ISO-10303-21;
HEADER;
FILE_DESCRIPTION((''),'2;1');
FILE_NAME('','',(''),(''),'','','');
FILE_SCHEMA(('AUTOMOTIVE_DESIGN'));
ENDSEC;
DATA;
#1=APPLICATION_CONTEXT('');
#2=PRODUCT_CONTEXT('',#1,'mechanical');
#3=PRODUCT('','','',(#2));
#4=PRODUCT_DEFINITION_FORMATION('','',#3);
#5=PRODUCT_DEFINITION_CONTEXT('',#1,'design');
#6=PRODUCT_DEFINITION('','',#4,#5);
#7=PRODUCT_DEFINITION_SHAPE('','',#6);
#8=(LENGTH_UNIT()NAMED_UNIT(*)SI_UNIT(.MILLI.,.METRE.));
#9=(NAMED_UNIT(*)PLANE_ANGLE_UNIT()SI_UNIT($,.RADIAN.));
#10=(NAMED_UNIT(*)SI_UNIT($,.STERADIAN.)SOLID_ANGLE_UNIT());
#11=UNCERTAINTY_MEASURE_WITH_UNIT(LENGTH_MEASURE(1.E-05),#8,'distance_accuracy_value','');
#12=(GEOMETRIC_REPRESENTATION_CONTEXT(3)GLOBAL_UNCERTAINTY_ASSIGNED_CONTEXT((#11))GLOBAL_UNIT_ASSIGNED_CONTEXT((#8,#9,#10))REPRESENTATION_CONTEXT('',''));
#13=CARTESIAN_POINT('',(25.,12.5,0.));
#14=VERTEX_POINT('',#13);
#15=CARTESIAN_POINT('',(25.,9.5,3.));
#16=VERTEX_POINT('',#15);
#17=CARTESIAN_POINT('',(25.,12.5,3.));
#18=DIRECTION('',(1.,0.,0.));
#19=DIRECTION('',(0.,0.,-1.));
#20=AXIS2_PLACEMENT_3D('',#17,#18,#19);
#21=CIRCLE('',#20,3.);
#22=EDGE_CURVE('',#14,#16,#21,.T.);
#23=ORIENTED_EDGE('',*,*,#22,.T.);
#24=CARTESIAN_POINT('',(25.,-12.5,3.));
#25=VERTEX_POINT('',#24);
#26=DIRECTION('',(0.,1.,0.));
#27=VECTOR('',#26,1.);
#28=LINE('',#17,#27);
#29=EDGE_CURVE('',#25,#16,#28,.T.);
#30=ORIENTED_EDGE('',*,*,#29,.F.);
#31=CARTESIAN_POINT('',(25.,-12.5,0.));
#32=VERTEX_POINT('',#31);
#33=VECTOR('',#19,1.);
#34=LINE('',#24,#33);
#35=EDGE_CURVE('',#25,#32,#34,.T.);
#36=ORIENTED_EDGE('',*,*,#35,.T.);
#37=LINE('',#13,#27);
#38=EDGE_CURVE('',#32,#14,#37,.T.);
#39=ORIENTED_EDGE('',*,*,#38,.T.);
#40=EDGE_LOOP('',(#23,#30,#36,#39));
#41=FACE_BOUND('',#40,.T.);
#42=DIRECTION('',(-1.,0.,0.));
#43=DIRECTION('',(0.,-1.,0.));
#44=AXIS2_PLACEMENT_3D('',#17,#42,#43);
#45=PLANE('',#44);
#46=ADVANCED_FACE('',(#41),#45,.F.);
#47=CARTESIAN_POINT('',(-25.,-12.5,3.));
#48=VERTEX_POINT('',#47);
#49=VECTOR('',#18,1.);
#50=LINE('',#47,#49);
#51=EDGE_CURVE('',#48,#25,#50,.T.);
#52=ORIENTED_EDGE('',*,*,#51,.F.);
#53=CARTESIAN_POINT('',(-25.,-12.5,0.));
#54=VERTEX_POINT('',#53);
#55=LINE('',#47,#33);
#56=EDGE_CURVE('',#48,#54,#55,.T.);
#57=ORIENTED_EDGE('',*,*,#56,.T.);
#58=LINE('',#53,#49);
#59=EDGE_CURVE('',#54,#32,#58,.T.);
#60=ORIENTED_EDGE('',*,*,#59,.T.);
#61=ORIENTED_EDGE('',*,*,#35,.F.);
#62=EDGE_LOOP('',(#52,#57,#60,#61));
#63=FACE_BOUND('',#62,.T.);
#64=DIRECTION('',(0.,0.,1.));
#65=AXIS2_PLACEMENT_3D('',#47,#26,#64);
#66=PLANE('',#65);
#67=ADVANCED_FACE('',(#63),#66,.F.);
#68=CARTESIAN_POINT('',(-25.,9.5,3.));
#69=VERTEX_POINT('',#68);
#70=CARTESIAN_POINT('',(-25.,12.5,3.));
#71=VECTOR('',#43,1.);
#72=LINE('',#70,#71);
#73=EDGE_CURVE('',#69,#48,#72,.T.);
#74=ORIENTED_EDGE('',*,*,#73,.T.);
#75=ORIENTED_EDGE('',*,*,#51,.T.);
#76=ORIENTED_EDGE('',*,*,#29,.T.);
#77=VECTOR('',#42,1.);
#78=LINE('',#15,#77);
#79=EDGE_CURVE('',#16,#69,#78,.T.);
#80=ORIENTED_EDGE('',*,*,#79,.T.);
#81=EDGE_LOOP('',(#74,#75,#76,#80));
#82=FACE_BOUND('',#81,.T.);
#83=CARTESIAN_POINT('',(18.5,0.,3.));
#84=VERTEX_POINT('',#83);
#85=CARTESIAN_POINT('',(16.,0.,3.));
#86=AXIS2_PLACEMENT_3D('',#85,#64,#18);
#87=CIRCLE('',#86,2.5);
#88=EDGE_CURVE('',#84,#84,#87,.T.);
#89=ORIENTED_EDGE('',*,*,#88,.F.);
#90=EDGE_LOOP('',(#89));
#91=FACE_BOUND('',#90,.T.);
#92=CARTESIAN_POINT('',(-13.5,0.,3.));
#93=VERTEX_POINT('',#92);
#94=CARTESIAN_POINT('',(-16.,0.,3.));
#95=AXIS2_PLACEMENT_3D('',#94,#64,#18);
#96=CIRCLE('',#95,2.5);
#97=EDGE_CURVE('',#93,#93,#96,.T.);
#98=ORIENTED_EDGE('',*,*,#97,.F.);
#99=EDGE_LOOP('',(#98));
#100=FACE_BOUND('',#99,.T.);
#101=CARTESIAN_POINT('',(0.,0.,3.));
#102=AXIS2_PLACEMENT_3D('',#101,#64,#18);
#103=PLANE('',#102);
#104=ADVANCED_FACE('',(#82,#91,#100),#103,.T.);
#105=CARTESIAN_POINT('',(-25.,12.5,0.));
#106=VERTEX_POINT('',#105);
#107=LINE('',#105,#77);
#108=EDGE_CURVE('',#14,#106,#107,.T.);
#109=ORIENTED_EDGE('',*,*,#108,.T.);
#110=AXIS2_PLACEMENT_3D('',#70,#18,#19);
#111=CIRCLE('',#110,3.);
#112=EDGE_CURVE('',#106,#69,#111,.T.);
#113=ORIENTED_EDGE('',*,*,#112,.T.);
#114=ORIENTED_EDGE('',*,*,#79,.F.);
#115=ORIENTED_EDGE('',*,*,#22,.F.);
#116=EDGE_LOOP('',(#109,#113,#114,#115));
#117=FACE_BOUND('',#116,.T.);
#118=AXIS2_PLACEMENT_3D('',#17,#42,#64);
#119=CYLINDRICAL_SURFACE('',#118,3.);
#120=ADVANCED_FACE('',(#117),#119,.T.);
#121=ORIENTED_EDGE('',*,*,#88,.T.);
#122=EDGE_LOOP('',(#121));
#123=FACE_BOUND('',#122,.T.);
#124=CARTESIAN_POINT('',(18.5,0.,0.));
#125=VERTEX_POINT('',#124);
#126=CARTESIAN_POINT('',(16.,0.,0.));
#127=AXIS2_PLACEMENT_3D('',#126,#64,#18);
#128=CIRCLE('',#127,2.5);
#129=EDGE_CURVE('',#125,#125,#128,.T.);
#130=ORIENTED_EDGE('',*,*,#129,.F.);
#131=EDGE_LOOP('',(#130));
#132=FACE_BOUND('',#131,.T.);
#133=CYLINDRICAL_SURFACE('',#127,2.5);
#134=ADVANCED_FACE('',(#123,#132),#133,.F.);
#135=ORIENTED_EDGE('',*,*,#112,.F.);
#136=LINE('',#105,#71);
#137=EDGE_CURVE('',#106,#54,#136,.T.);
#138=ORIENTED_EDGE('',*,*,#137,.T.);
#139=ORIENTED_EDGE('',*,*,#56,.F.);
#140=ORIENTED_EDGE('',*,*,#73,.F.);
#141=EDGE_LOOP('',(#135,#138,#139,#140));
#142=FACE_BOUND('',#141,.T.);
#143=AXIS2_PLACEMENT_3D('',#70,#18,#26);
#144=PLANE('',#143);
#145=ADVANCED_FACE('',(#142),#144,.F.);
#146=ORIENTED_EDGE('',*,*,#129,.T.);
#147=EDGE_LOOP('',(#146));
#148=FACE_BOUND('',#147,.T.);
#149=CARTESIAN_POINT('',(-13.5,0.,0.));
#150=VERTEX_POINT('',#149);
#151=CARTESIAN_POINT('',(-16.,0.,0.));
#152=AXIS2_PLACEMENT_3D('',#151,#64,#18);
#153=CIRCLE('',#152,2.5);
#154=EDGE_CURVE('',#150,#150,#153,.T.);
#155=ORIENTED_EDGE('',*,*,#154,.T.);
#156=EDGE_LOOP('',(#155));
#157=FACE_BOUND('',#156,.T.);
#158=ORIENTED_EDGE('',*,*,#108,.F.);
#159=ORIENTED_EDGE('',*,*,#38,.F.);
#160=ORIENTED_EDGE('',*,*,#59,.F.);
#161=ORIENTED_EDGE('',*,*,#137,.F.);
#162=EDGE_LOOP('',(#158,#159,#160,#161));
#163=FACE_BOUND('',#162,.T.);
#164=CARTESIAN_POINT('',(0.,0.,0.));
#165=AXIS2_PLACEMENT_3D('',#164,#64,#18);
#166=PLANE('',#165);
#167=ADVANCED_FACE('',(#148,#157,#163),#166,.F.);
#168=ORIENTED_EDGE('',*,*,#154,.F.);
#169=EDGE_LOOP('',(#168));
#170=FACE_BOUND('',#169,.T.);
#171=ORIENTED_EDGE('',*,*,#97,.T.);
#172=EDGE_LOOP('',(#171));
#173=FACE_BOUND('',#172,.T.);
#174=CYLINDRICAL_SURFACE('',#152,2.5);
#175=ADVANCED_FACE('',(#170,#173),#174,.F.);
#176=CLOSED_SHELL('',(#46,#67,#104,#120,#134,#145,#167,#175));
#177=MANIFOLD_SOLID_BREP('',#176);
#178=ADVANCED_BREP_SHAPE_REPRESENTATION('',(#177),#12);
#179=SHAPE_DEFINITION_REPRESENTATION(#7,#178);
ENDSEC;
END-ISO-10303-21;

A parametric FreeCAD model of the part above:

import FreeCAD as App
import Part
import Sketcher

V = App.Vector
Q = App.Units.Quantity

doc = App.newDocument("Part")
params = doc.addObject("Spreadsheet::Sheet", "Params")
for row, (alias, value) in enumerate([
    ("sketch1_width", "50 mm"),
    ("sketch1_height", "25 mm"),
    ("pad1_length", "3 mm"),
    ("sketch2_diameter", "6 mm"),
    ("pad2_length", "50 mm"),
    ("sketch3_diameter", "5 mm"),
], start=1):
    params.set(f"A{row}", alias)
    params.set(f"B{row}", "=" + value)
    params.setAlias(f"B{row}", alias)

body = doc.addObject("PartDesign::Body", "Body")

# Sketch on XY plane
sketch1 = doc.addObject("Sketcher::SketchObject", "Sketch")
body.addObject(sketch1)
sketch1.AttachmentSupport = (doc.XY_Plane, [""])
sketch1.MapMode = "FlatFace"
sketch1.addGeometry(Part.LineSegment(V(-25, 12, 0), V(-25, -12, 0)), False)
sketch1.addGeometry(Part.LineSegment(V(-25, -12, 0), V(25, -12, 0)), False)
sketch1.addGeometry(Part.LineSegment(V(25, -12, 0), V(25, 12, 0)), False)
sketch1.addGeometry(Part.LineSegment(V(25, 12, 0), V(-25, 12, 0)), False)
sketch1.addConstraint(Sketcher.Constraint("Coincident", 0, 2, 1, 1))
sketch1.addConstraint(Sketcher.Constraint("Coincident", 1, 2, 2, 1))
sketch1.addConstraint(Sketcher.Constraint("Coincident", 2, 2, 3, 1))
sketch1.addConstraint(Sketcher.Constraint("Coincident", 3, 2, 0, 1))
sketch1.addConstraint(Sketcher.Constraint("Vertical", 0))
sketch1.addConstraint(Sketcher.Constraint("Horizontal", 1))
sketch1.addConstraint(Sketcher.Constraint("Vertical", 2))
sketch1.addConstraint(Sketcher.Constraint("Horizontal", 3))
sketch1.addConstraint(Sketcher.Constraint("Symmetric", 0, 2, 2, 2, -1, 1))
sketch1.addConstraint(Sketcher.Constraint("DistanceX", 1, 1, 1, 2, Q("50 mm")))
sketch1.addConstraint(Sketcher.Constraint("DistanceY", 0, 2, 0, 1, Q("25 mm")))
sketch1.setExpression("Constraints[9]", "Params.sketch1_width")
sketch1.setExpression("Constraints[10]", "Params.sketch1_height")
pad1 = doc.addObject("PartDesign::Pad", "Pad")
body.addObject(pad1)
pad1.Profile = sketch1
pad1.setExpression("Length", "Params.pad1_length")

# Sketch on YZ plane
sketch2 = doc.addObject("Sketcher::SketchObject", "Sketch001")
body.addObject(sketch2)
sketch2.AttachmentSupport = (doc.YZ_Plane, [""])
sketch2.MapMode = "FlatFace"
sketch2.addGeometry(Part.Circle(V(12.5, 3, 0), V(0, 0, 1), 3), False)
sketch2.addConstraint(Sketcher.Constraint("Diameter", 0, Q("6 mm")))
sketch2.addConstraint(Sketcher.Constraint("DistanceY", -1, 1, 0, 3, Q("3 mm")))
sketch2.addConstraint(Sketcher.Constraint("DistanceX", -1, 1, 0, 3, Q("12.5 mm")))
sketch2.setExpression("Constraints[0]", "Params.sketch2_diameter")
pad2 = doc.addObject("PartDesign::Pad", "Pad001")
body.addObject(pad2)
pad2.Profile = sketch2
pad2.setExpression("Length", "Params.pad2_length")
pad2.Midplane = True

# Sketch on XY plane
sketch3 = doc.addObject("Sketcher::SketchObject", "Sketch002")
body.addObject(sketch3)
sketch3.AttachmentSupport = (doc.XY_Plane, [""])
sketch3.MapMode = "FlatFace"
sketch3.AttachmentOffset = App.Placement(V(0, 0, 3), App.Rotation())
sketch3.addGeometry(Part.Circle(V(-16, 0, 0), V(0, 0, 1), 2.5), False)
sketch3.addGeometry(Part.Circle(V(16, 0, 0), V(0, 0, 1), 2.5), False)
sketch3.addConstraint(Sketcher.Constraint("Equal", 0, 1))
sketch3.addConstraint(Sketcher.Constraint("Symmetric", 0, 3, 1, 3, -1, 1))
sketch3.addConstraint(Sketcher.Constraint("PointOnObject", 0, 3, -1))
sketch3.addConstraint(Sketcher.Constraint("Diameter", 0, Q("5 mm")))
sketch3.addConstraint(Sketcher.Constraint("DistanceX", 0, 3, -1, 1, Q("16 mm")))
sketch3.setExpression("Constraints[3]", "Params.sketch3_diameter")
pocket1 = doc.addObject("PartDesign::Pocket", "Pocket")
body.addObject(pocket1)
pocket1.Profile = sketch3
pocket1.Type = "ThroughAll"

doc.recompute()
